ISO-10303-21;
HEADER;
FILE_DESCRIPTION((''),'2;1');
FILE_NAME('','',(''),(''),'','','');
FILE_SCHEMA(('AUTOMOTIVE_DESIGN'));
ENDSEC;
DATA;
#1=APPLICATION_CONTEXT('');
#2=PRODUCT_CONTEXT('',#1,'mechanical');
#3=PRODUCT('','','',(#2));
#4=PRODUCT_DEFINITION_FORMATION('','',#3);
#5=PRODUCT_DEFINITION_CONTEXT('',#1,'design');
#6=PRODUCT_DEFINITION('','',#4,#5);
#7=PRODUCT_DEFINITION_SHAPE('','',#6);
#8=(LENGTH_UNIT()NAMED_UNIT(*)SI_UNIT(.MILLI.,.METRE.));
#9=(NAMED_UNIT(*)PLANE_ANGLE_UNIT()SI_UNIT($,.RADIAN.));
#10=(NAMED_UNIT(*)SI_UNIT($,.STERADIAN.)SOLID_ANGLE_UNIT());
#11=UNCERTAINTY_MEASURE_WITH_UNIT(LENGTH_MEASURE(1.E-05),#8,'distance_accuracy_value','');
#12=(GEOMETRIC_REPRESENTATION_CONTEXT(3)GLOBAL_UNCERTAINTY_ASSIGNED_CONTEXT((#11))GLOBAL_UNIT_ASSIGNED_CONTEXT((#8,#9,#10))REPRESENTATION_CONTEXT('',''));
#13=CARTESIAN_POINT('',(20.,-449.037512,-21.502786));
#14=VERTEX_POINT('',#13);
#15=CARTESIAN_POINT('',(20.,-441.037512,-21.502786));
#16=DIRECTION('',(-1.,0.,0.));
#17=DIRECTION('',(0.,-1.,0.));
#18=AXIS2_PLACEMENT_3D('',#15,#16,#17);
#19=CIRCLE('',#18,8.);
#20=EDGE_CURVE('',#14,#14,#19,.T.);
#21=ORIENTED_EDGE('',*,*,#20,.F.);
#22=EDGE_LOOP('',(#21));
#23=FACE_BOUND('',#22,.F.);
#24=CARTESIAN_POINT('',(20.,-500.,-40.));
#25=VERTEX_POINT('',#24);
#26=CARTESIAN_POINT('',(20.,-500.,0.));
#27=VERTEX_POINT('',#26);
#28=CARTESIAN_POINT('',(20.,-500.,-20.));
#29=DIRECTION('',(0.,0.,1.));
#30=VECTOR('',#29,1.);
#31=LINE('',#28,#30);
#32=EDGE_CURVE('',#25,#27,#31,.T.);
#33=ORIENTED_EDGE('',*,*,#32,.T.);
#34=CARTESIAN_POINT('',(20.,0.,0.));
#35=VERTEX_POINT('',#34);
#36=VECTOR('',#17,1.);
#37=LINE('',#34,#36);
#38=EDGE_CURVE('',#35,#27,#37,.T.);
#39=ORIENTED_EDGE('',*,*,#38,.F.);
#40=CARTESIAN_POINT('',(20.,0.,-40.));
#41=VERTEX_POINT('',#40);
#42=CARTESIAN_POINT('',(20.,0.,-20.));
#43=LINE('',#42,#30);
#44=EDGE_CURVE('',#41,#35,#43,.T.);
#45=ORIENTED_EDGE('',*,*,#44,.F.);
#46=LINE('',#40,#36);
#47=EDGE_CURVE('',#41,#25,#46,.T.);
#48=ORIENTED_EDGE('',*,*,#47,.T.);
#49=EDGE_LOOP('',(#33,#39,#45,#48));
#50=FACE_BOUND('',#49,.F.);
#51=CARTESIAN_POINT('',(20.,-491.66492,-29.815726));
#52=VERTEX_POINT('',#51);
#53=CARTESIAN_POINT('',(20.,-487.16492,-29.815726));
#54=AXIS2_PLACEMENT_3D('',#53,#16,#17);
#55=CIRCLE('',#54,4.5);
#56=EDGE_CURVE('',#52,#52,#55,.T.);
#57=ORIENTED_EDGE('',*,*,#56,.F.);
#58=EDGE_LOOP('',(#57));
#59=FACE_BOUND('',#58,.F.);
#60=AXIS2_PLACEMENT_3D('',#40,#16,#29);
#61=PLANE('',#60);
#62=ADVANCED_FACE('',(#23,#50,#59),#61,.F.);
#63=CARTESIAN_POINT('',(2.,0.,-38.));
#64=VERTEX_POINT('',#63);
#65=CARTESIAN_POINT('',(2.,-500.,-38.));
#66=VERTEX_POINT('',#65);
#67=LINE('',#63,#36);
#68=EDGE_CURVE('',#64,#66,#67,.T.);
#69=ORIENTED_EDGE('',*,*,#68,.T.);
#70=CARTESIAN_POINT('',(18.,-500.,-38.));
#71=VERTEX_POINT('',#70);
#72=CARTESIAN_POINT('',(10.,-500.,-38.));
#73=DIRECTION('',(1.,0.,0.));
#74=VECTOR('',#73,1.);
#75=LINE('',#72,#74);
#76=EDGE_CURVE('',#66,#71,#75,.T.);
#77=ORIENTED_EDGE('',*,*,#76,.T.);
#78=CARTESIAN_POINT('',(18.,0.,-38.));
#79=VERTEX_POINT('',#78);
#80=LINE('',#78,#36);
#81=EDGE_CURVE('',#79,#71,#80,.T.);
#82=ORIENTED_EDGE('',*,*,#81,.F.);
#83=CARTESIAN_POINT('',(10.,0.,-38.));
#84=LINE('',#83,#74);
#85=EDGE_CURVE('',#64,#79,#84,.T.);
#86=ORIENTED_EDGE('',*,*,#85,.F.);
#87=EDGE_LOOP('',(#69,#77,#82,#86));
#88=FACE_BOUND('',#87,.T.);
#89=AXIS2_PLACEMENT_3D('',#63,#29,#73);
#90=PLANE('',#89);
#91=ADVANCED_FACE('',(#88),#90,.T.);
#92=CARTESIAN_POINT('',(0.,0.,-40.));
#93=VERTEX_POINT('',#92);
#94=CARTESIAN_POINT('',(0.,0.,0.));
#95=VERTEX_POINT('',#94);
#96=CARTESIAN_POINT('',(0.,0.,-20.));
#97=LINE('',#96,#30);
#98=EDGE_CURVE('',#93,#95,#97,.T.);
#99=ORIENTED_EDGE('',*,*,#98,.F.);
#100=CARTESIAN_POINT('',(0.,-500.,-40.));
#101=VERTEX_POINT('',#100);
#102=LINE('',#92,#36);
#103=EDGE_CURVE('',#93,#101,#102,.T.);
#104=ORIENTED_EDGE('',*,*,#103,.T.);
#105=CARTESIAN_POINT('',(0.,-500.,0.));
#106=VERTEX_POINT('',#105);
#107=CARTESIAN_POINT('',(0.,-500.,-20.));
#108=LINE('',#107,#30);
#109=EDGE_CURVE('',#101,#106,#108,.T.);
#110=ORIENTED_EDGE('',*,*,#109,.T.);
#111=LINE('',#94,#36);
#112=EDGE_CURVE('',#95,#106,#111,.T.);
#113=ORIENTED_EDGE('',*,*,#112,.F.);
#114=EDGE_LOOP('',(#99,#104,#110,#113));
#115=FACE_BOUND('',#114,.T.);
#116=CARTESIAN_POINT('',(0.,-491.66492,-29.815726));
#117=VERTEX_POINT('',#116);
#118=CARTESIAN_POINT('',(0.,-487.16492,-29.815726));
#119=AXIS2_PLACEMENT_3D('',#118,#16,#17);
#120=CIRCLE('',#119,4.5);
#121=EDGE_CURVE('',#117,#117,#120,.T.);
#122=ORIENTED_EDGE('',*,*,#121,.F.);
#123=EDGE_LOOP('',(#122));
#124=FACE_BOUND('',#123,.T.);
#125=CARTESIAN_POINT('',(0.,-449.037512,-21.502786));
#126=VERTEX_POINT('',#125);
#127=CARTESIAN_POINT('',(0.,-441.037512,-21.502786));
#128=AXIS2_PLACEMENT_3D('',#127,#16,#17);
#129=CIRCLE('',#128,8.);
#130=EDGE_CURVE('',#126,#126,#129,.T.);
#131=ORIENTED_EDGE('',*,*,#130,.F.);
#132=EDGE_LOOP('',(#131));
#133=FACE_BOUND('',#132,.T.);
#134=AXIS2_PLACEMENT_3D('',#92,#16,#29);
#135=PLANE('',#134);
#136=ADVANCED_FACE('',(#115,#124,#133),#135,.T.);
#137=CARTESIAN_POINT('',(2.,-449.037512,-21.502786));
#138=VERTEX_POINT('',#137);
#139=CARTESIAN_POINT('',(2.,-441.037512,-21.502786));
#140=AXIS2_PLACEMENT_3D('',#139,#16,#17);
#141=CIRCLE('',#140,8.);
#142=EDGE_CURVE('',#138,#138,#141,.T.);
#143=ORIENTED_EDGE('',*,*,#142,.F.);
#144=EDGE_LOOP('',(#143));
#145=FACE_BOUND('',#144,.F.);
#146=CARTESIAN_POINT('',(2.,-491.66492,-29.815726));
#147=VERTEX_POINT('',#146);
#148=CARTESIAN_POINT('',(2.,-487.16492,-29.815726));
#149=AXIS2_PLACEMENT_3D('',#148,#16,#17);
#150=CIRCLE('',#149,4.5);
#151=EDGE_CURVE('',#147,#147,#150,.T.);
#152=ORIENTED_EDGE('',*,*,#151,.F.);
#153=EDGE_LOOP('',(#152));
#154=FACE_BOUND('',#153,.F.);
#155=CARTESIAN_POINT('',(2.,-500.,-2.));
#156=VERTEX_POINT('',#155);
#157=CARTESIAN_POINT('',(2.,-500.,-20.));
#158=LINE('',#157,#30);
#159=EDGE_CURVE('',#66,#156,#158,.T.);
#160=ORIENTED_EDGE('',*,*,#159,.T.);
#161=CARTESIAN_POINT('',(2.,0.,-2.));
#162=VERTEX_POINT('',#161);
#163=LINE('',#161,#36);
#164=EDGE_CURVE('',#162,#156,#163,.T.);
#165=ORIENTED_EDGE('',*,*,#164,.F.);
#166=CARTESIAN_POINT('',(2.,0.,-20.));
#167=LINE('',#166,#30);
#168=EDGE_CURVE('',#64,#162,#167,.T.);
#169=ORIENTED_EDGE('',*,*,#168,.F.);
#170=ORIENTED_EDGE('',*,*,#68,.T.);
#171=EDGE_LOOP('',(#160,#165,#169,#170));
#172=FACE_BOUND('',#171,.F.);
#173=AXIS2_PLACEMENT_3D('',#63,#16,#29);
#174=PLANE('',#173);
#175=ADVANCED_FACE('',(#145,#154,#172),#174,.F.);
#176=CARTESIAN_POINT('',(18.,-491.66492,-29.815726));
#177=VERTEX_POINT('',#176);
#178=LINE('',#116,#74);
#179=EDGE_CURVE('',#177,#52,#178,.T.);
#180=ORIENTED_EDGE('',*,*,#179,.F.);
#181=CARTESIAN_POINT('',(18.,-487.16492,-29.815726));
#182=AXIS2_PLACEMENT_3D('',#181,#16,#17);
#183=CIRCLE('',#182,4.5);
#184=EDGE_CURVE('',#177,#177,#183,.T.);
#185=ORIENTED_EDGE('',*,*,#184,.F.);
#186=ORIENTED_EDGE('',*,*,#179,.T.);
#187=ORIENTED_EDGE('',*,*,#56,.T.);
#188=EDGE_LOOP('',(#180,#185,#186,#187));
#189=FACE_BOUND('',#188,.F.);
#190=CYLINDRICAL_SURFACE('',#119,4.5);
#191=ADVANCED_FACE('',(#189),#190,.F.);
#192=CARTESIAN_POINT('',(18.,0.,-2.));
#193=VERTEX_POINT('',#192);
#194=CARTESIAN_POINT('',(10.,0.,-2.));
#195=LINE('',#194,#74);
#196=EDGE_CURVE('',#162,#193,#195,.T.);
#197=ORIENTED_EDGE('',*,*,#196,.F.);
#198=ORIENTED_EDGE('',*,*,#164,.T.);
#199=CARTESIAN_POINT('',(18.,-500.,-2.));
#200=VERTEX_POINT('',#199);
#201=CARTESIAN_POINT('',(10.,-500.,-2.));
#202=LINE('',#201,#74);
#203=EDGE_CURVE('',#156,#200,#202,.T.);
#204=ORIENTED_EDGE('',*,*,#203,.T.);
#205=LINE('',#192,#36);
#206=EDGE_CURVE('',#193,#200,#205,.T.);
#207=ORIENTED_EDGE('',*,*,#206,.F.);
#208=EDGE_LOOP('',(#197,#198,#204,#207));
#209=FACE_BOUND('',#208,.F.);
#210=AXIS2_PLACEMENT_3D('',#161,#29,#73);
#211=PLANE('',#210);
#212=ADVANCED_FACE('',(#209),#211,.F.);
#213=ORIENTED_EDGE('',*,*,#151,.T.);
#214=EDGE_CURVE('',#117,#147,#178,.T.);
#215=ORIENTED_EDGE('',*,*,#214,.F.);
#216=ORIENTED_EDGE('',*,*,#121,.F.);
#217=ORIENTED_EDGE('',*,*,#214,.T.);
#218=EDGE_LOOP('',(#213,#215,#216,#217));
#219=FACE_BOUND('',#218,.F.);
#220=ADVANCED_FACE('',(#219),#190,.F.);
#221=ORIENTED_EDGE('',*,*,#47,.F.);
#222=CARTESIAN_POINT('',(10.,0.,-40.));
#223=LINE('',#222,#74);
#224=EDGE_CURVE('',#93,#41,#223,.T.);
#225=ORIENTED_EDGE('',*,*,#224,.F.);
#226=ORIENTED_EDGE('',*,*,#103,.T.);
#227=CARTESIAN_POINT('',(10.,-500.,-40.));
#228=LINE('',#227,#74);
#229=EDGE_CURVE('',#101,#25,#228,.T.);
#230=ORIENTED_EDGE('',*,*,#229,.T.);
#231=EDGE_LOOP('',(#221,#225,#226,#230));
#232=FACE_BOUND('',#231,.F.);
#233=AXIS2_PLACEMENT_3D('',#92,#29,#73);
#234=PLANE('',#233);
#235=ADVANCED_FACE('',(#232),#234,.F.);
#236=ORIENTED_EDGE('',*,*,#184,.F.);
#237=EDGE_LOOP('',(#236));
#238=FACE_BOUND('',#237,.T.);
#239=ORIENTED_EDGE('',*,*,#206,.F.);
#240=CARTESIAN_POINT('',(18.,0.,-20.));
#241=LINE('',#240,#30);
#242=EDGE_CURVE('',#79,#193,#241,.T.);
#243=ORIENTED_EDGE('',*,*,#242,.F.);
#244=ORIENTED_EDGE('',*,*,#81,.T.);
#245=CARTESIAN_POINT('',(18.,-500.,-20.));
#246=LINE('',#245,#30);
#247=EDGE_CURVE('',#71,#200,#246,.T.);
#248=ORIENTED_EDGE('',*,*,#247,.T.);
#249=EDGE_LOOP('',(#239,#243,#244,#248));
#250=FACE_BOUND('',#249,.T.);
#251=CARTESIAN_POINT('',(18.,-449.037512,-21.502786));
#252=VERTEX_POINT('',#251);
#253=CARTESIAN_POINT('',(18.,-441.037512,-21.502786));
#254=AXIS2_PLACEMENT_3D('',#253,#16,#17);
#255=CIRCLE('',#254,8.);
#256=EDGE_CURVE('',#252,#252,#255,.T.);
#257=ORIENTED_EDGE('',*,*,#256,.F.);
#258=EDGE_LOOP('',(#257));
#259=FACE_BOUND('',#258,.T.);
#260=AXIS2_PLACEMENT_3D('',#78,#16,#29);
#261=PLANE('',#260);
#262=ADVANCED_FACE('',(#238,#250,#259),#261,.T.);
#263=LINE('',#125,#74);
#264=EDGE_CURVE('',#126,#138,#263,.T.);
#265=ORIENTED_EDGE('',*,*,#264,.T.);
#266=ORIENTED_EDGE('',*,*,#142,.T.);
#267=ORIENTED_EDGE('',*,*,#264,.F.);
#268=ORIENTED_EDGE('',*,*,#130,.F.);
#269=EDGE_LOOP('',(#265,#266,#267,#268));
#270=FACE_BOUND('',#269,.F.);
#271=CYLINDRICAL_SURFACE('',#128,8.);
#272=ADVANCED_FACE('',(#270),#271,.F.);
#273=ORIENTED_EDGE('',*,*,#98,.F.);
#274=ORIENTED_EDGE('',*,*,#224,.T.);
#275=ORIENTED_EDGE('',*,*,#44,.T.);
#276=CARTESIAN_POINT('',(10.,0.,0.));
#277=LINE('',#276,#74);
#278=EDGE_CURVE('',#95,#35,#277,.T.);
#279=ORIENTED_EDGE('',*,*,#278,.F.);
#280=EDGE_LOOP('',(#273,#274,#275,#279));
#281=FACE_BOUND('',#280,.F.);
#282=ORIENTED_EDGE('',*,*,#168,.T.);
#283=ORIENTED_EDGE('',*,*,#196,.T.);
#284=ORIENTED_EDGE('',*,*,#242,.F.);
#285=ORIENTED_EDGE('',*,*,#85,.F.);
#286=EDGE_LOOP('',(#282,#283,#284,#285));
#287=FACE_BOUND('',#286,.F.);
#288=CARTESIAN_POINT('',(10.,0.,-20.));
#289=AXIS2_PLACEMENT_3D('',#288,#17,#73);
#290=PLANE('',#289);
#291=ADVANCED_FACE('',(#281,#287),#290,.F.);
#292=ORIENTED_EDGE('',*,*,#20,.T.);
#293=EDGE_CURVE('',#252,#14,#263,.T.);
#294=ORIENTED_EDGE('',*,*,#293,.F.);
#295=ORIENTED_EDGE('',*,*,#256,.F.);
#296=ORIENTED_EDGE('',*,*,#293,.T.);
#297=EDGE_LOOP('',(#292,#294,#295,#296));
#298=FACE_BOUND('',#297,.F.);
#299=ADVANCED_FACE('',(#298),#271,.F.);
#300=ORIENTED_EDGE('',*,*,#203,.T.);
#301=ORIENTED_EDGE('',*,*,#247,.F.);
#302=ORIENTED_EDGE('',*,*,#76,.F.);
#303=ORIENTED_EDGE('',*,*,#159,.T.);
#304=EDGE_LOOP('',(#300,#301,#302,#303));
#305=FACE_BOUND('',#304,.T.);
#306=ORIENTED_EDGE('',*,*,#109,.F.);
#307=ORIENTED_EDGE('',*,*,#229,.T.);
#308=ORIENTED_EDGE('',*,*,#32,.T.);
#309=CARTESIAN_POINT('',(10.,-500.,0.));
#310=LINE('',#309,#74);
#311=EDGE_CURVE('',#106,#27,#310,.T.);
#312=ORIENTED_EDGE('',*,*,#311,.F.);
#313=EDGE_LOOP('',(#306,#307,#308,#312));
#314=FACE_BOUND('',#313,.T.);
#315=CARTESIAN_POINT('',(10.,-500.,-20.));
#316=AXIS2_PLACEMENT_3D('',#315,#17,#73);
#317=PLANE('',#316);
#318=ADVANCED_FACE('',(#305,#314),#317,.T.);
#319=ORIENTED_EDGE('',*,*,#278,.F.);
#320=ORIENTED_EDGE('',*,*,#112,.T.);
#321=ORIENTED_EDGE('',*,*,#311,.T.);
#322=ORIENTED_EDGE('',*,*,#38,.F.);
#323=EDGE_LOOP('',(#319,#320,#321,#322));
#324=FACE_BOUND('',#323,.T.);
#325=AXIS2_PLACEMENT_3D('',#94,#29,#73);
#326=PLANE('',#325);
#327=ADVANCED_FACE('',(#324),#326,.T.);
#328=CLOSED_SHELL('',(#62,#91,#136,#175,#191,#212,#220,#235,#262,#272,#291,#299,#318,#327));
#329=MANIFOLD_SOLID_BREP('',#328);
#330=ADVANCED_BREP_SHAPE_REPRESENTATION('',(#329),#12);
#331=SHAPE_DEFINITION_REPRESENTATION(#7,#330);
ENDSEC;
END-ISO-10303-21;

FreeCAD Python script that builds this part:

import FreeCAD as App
import Part
import Sketcher
Q = App.Units.Quantity


def add_polygon(sketch, points):
    """Adds a closed chain of lines whose ends are joined by coincident constraints."""
    first, n = sketch.GeometryCount, len(points)
    for a, b in zip(points, points[1:] + points[:1]):
        sketch.addGeometry(Part.LineSegment(App.Vector(*a, 0), App.Vector(*b, 0)), False)
    for i in range(n):
        sketch.addConstraint(Sketcher.Constraint("Coincident", first + i, 2, first + (i + 1) % n, 1))

doc = App.newDocument("Part")
body = doc.addObject("PartDesign::Body", "Body")

# Sketch on XZ plane
sketch1 = body.newObject("Sketcher::SketchObject", "Sketch")
sketch1.AttachmentSupport = (doc.getObject("XZ_Plane"), [""])
sketch1.MapMode = "FlatFace"
add_polygon(sketch1, [(0, 0), (0, -40), (20, -40), (20, 0)])  # lines 0-3
add_polygon(sketch1, [(18, -38), (2, -38), (2, -2), (18, -2)])  # lines 4-7
sketch1.addConstraint([
    Sketcher.Constraint("Vertical", 0),
    Sketcher.Constraint("Horizontal", 1),
    Sketcher.Constraint("Vertical", 2),
    Sketcher.Constraint("Horizontal", 3),
    Sketcher.Constraint("Horizontal", 4),
    Sketcher.Constraint("Vertical", 5),
    Sketcher.Constraint("Horizontal", 6),
    Sketcher.Constraint("Vertical", 7),
    Sketcher.Constraint("Coincident", 3, 2, -1, 1),
    Sketcher.Constraint("DistanceX", 1, 1, 1, 2, Q("20 mm")),
    Sketcher.Constraint("DistanceX", 4, 2, 4, 1, Q("16 mm")),
    Sketcher.Constraint("DistanceY", 0, 2, 0, 1, Q("40 mm")),
    Sketcher.Constraint("DistanceY", 5, 1, 5, 2, Q("36 mm")),
    Sketcher.Constraint("DistanceX", -1, 1, 4, 2, Q("2 mm")),
    Sketcher.Constraint("DistanceY", 4, 2, -1, 1, Q("38 mm")),
])
pad1 = body.newObject("PartDesign::Pad", "Pad")
pad1.Profile = sketch1
pad1.Length = 500

# Sketch on YZ plane
sketch2 = body.newObject("Sketcher::SketchObject", "Sketch001")
sketch2.AttachmentSupport = (doc.getObject("YZ_Plane"), [""])
sketch2.MapMode = "FlatFace"
sketch2.addGeometry([
    Part.Circle(App.Vector(-487.2, -29.8, 0), App.Vector(0, 0, 1), 4.5),
    Part.Circle(App.Vector(-441, -21.5, 0), App.Vector(0, 0, 1), 8),
], False)
sketch2.addConstraint([
    Sketcher.Constraint("Diameter", 0, Q("9 mm")),
    Sketcher.Constraint("Diameter", 1, Q("16 mm")),
    Sketcher.Constraint("DistanceX", 0, 3, -1, 1, Q("487.16492 mm")),
    Sketcher.Constraint("DistanceX", 1, 3, -1, 1, Q("441.037512 mm")),
    Sketcher.Constraint("DistanceY", 0, 3, 1, 3, Q("8.31294 mm")),
    Sketcher.Constraint("DistanceY", 0, 3, -1, 1, Q("29.815726 mm")),
])
pocket1 = body.newObject("PartDesign::Pocket", "Pocket")
pocket1.Profile = sketch2
pocket1.Length = 25
pocket1.Reversed = True

doc.recompute()
